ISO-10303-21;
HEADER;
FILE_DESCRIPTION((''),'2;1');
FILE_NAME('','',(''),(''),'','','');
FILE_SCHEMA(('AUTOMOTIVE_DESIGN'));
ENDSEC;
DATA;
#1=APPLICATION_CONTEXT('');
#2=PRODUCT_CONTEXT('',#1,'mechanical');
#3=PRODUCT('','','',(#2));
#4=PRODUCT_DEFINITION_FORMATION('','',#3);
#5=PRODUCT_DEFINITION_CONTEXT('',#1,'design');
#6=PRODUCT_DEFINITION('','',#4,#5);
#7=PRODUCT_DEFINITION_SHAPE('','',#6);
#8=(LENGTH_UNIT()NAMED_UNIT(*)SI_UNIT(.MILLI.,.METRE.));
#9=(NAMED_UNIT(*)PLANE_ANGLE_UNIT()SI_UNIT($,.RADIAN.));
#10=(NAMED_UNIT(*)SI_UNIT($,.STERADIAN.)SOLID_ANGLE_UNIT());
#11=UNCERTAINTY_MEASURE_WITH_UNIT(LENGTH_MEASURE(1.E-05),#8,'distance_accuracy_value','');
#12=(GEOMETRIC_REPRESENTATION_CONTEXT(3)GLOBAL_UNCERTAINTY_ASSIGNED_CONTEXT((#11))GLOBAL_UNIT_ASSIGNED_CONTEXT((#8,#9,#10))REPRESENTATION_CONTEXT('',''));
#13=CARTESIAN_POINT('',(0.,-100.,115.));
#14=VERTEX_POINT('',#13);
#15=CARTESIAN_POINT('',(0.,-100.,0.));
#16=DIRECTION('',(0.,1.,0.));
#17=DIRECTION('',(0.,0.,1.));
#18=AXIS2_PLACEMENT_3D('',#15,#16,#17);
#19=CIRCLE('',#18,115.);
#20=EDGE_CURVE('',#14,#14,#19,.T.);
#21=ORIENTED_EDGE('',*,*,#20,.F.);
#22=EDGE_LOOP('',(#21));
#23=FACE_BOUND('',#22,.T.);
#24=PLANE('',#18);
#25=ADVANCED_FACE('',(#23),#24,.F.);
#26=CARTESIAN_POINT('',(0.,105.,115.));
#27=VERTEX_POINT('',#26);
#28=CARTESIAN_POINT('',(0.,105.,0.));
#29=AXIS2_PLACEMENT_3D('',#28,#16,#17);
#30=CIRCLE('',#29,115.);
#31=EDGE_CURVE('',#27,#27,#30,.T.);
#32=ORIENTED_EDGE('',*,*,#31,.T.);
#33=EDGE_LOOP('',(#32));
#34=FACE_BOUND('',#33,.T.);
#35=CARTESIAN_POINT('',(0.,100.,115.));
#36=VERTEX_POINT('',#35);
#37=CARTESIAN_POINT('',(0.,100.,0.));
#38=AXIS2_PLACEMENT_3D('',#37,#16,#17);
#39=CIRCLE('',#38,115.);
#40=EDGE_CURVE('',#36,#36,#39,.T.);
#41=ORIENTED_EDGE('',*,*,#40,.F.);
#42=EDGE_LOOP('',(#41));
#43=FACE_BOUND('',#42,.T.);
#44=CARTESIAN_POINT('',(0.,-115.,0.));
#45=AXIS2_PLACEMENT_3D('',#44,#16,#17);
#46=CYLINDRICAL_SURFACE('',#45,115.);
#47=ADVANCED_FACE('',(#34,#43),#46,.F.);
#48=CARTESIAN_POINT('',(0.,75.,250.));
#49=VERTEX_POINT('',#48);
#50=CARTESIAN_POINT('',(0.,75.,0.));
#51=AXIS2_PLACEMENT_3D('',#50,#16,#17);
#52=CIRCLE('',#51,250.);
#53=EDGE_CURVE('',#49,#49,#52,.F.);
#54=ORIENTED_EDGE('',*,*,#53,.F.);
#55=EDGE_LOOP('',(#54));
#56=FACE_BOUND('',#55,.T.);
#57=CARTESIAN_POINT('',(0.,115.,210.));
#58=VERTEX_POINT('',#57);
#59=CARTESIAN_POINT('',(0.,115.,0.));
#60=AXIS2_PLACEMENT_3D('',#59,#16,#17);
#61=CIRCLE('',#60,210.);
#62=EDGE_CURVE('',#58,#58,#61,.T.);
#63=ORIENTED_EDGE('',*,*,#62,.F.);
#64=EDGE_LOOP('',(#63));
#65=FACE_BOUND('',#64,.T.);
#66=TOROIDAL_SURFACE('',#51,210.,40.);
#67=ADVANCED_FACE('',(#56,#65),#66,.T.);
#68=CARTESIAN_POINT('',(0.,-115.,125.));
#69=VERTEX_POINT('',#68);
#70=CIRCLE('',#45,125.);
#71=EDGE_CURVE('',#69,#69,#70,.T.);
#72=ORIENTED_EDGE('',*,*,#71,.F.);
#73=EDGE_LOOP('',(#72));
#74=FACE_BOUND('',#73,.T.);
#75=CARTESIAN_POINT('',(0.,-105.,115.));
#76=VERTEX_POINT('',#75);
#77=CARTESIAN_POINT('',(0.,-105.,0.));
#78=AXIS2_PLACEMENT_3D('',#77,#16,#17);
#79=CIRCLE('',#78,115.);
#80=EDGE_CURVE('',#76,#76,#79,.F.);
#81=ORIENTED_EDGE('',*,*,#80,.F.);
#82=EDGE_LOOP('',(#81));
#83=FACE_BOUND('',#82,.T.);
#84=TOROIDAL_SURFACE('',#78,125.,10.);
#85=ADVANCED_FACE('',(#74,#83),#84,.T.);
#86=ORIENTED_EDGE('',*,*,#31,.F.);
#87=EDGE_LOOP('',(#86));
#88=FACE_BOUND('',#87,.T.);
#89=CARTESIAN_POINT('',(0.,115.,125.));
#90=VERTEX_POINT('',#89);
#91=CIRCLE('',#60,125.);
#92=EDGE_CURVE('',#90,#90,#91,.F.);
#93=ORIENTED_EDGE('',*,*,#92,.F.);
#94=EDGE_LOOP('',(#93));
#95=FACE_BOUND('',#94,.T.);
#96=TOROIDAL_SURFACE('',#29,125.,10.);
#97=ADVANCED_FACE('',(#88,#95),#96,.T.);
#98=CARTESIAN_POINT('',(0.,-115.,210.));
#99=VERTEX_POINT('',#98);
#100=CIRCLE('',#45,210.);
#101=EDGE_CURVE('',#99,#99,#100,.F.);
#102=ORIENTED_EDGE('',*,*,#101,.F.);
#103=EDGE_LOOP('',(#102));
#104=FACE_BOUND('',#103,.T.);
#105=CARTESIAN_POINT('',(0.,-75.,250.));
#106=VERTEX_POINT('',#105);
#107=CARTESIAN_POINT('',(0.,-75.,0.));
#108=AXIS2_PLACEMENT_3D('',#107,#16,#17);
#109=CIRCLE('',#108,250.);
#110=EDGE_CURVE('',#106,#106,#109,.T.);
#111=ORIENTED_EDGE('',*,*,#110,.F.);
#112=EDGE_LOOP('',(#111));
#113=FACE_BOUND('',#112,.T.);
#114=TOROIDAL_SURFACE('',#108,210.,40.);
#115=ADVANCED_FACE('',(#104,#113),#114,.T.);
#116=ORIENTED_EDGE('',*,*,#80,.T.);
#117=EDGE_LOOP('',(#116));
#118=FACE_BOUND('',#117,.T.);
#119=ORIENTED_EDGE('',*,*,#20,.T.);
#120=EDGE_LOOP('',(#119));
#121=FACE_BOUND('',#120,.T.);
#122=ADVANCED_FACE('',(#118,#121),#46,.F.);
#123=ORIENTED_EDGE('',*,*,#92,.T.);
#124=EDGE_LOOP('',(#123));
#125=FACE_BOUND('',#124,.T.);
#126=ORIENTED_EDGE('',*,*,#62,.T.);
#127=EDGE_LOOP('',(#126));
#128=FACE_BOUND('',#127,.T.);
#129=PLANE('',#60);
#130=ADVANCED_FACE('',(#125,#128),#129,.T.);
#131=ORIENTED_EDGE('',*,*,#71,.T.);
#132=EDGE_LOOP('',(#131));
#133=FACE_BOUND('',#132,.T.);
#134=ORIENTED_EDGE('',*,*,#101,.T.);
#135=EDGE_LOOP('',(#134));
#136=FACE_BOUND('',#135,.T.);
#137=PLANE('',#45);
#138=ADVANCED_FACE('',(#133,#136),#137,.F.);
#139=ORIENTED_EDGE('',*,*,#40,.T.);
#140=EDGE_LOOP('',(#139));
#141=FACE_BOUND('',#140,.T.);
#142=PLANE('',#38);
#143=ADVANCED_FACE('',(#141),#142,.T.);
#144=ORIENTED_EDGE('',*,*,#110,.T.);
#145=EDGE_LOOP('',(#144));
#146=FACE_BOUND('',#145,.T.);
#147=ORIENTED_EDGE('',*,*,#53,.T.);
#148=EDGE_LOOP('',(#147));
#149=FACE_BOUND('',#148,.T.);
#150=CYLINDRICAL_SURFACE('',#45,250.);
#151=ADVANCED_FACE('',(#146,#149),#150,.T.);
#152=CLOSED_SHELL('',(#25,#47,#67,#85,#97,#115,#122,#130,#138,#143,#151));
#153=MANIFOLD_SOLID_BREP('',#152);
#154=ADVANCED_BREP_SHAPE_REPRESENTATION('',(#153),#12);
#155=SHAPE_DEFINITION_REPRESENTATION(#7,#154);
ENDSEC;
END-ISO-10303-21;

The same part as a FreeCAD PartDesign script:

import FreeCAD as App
import Part
import Sketcher
from FreeCAD import Vector


def edges_at(feature, points):
    """Names of the edges that pass closest to the given points."""
    edges = feature.Shape.Edges
    near = lambda p: min(range(len(edges)), key=lambda i: edges[i].distToShape(Part.Vertex(*p))[0])
    return sorted({f"Edge{near(p) + 1}" for p in points})

doc = App.newDocument("Part")
body = doc.addObject("PartDesign::Body", "Body")

# Sketch on XZ plane
sketch1 = body.newObject("Sketcher::SketchObject", "Sketch")
sketch1.AttachmentSupport = (doc.getObject("XZ_Plane"), [""])
sketch1.MapMode = "FlatFace"
sketch1.addGeometry(Part.Circle(Vector(0, 0, 0), Vector(0, 0, 1), 120), False)
sketch1.addConstraint([
    Sketcher.Constraint("Coincident", 0, 3, -1, 1),
    Sketcher.Constraint("Diameter", 0, 240.0),
])
pad1 = body.newObject("PartDesign::Pad", "Pad")
pad1.Profile = sketch1
pad1.Type = "TwoLengths"
pad1.Length = 100
pad1.Length2 = 100
pad1.Reversed = True

# Sketch on XZ plane
sketch2 = body.newObject("Sketcher::SketchObject", "Sketch001")
sketch2.AttachmentSupport = (doc.getObject("XZ_Plane"), [""])
sketch2.MapMode = "FlatFace"
sketch2.addGeometry([
    Part.Circle(Vector(0, 0, 0), Vector(0, 0, 1), 250),
    Part.Circle(Vector(0, 0, 0), Vector(0, 0, 1), 115),
], False)
sketch2.addConstraint([
    Sketcher.Constraint("Coincident", 0, 3, -1, 1),
    Sketcher.Constraint("Coincident", 1, 3, -1, 1),
    Sketcher.Constraint("Diameter", 0, 500.0),
    Sketcher.Constraint("Diameter", 1, 230.0),
])
pad2 = body.newObject("PartDesign::Pad", "Pad001")
pad2.Profile = sketch2
pad2.Type = "TwoLengths"
pad2.Length = 115
pad2.Length2 = 115
pad2.Reversed = True
doc.recompute()

fillet = body.newObject("PartDesign::Fillet", "Fillet")
fillet.Base = (pad2, edges_at(pad2, [(0, 115, -250), (0, -115, -250)]))
fillet.Radius = 40
doc.recompute()

fillet2 = body.newObject("PartDesign::Fillet", "Fillet001")
fillet2.Base = (fillet, edges_at(fillet, [(0, -115, -115)]))
fillet2.Radius = 10
doc.recompute()

fillet3 = body.newObject("PartDesign::Fillet", "Fillet002")
fillet3.Base = (fillet2, edges_at(fillet2, [(0, 115, -115)]))
fillet3.Radius = 10

doc.recompute()
